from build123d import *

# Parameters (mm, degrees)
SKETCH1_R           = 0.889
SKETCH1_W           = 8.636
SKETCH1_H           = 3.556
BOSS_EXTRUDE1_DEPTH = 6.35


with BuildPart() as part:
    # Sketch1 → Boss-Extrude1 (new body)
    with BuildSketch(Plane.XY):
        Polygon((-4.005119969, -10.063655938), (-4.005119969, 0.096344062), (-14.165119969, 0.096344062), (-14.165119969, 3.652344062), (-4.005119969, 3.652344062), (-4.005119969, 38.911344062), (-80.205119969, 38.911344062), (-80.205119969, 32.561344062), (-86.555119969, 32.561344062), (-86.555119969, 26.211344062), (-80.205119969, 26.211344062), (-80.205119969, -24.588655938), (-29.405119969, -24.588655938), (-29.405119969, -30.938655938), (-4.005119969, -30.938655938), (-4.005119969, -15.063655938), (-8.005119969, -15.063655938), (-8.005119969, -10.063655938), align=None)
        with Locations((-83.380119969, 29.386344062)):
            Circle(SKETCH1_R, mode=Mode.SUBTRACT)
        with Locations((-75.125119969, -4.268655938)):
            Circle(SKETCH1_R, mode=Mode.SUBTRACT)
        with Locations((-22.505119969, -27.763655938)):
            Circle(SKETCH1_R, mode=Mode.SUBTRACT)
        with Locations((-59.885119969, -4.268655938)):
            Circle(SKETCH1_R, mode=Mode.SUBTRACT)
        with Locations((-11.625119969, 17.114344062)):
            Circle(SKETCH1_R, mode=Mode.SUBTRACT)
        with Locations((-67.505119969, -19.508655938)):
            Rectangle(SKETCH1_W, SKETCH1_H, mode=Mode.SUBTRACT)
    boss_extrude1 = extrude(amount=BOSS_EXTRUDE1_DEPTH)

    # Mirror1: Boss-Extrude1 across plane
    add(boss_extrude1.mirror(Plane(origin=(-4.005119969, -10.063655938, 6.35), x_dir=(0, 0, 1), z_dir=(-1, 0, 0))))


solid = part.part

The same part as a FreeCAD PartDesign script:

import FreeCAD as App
import Part
import Sketcher
Q = App.Units.Quantity

doc = App.newDocument("Part")
body = doc.addObject("PartDesign::Body", "Body")

# Sketch on XY plane
sketch1 = doc.addObject("Sketcher::SketchObject", "Sketch")
body.addObject(sketch1)
sketch1.AttachmentSupport = (doc.XY_Plane, [""])
sketch1.MapMode = "FlatFace"
sketch1.addGeometry([
    Part.LineSegment(App.Vector(-4, -10.1, 0), App.Vector(-4, 0.1, 0)),  # 0
    Part.LineSegment(App.Vector(-4, 0.1, 0), App.Vector(-14.2, 0.1, 0)),  # 1
    Part.LineSegment(App.Vector(-14.2, 0.1, 0), App.Vector(-14.2, 3.7, 0)),  # 2
    Part.LineSegment(App.Vector(-14.2, 3.7, 0), App.Vector(-4, 3.7, 0)),  # 3
    Part.LineSegment(App.Vector(-4, 3.7, 0), App.Vector(-4, 38.9, 0)),  # 4
    Part.LineSegment(App.Vector(-4, 38.9, 0), App.Vector(-80.2, 38.9, 0)),  # 5
    Part.LineSegment(App.Vector(-80.2, 38.9, 0), App.Vector(-80.2, 32.6, 0)),  # 6
    Part.LineSegment(App.Vector(-80.2, 32.6, 0), App.Vector(-86.6, 32.6, 0)),  # 7
    Part.LineSegment(App.Vector(-86.6, 32.6, 0), App.Vector(-86.6, 26.2, 0)),  # 8
    Part.LineSegment(App.Vector(-86.6, 26.2, 0), App.Vector(-80.2, 26.2, 0)),  # 9
    Part.LineSegment(App.Vector(-80.2, 26.2, 0), App.Vector(-80.2, -24.6, 0)),  # 10
    Part.LineSegment(App.Vector(-80.2, -24.6, 0), App.Vector(-29.4, -24.6, 0)),  # 11
    Part.LineSegment(App.Vector(-29.4, -24.6, 0), App.Vector(-29.4, -30.9, 0)),  # 12
    Part.LineSegment(App.Vector(-29.4, -30.9, 0), App.Vector(-4, -30.9, 0)),  # 13
    Part.LineSegment(App.Vector(-4, -30.9, 0), App.Vector(-4, -15.1, 0)),  # 14
    Part.LineSegment(App.Vector(-4, -15.1, 0), App.Vector(-8, -15.1, 0)),  # 15
    Part.LineSegment(App.Vector(-8, -15.1, 0), App.Vector(-8, -10.1, 0)),  # 16
    Part.LineSegment(App.Vector(-8, -10.1, 0), App.Vector(-4, -10.1, 0)),  # 17
    Part.LineSegment(App.Vector(-63.2, -21.3, 0), App.Vector(-71.8, -21.3, 0)),  # 18
    Part.LineSegment(App.Vector(-71.8, -21.3, 0), App.Vector(-71.8, -17.7, 0)),  # 19
    Part.LineSegment(App.Vector(-71.8, -17.7, 0), App.Vector(-63.2, -17.7, 0)),  # 20
    Part.LineSegment(App.Vector(-63.2, -17.7, 0), App.Vector(-63.2, -21.3, 0)),  # 21
    Part.Circle(App.Vector(-75.1, -4.3, 0), App.Vector(0, 0, 1), 0.9),  # 22
    Part.Circle(App.Vector(-59.9, -4.3, 0), App.Vector(0, 0, 1), 0.9),  # 23
    Part.Circle(App.Vector(-22.5, -27.8, 0), App.Vector(0, 0, 1), 0.9),  # 24
    Part.Circle(App.Vector(-83.4, 29.4, 0), App.Vector(0, 0, 1), 0.9),  # 25
    Part.Circle(App.Vector(-11.6, 17.1, 0), App.Vector(0, 0, 1), 0.9),  # 26
], False)
sketch1.addConstraint([
    Sketcher.Constraint("Coincident", 0, 2, 1, 1),
    Sketcher.Constraint("Coincident", 1, 2, 2, 1),
    Sketcher.Constraint("Coincident", 2, 2, 3, 1),
    Sketcher.Constraint("Coincident", 3, 2, 4, 1),
    Sketcher.Constraint("Coincident", 4, 2, 5, 1),
    Sketcher.Constraint("Coincident", 5, 2, 6, 1),
    Sketcher.Constraint("Coincident", 6, 2, 7, 1),
    Sketcher.Constraint("Coincident", 7, 2, 8, 1),
    Sketcher.Constraint("Coincident", 8, 2, 9, 1),
    Sketcher.Constraint("Coincident", 9, 2, 10, 1),
    Sketcher.Constraint("Coincident", 10, 2, 11, 1),
    Sketcher.Constraint("Coincident", 11, 2, 12, 1),
    Sketcher.Constraint("Coincident", 12, 2, 13, 1),
    Sketcher.Constraint("Coincident", 13, 2, 14, 1),
    Sketcher.Constraint("Coincident", 14, 2, 15, 1),
    Sketcher.Constraint("Coincident", 15, 2, 16, 1),
    Sketcher.Constraint("Coincident", 16, 2, 17, 1),
    Sketcher.Constraint("Coincident", 17, 2, 0, 1),
    Sketcher.Constraint("Coincident", 18, 2, 19, 1),
    Sketcher.Constraint("Coincident", 19, 2, 20, 1),
    Sketcher.Constraint("Coincident", 20, 2, 21, 1),
    Sketcher.Constraint("Coincident", 21, 2, 18, 1),
    Sketcher.Constraint("Vertical", 0),
    Sketcher.Constraint("Horizontal", 1),
    Sketcher.Constraint("Vertical", 2),
    Sketcher.Constraint("Horizontal", 3),
    Sketcher.Constraint("Vertical", 4),
    Sketcher.Constraint("Horizontal", 5),
    Sketcher.Constraint("Vertical", 6),
    Sketcher.Constraint("Horizontal", 7),
    Sketcher.Constraint("Vertical", 8),
    Sketcher.Constraint("Horizontal", 9),
    Sketcher.Constraint("Vertical", 10),
    Sketcher.Constraint("Horizontal", 11),
    Sketcher.Constraint("Vertical", 12),
    Sketcher.Constraint("Horizontal", 13),
    Sketcher.Constraint("Vertical", 14),
    Sketcher.Constraint("Horizontal", 15),
    Sketcher.Constraint("Vertical", 16),
    Sketcher.Constraint("Horizontal", 17),
    Sketcher.Constraint("Horizontal", 18),
    Sketcher.Constraint("Vertical", 19),
    Sketcher.Constraint("Horizontal", 20),
    Sketcher.Constraint("Vertical", 21),
    Sketcher.Constraint("Equal", 22, 23),
    Sketcher.Constraint("Equal", 23, 24),
    Sketcher.Constraint("Equal", 24, 25),
    Sketcher.Constraint("Equal", 25, 26),
    Sketcher.Constraint("Horizontal", 22, 3, 23, 3),
    Sketcher.Constraint("Vertical", 0, 2, 3, 2),
    Sketcher.Constraint("Vertical", 6, 2, 9, 2),
    Sketcher.Constraint("Vertical", 4, 2, 13, 2),
    Sketcher.Constraint("Equal", 3, 0),
    Sketcher.Constraint("Equal", 9, 6),
    Sketcher.Constraint("Equal", 6, 8),
    Sketcher.Constraint("Equal", 11, 10),
    Sketcher.Constraint("Equal", 8, 12),
    Sketcher.Constraint("Equal", 2, 19),
    Sketcher.Constraint("Diameter", 22, Q("0.07 in")),
    Sketcher.Constraint("DistanceX", 5, 2, 5, 1, Q("3 in")),
    Sketcher.Constraint("DistanceX", 11, 1, 11, 2, Q("2 in")),
    Sketcher.Constraint("DistanceX", 1, 2, 1, 1, Q("0.4 in")),
    Sketcher.Constraint("DistanceX", 7, 2, 7, 1, Q("0.25 in")),
    Sketcher.Constraint("DistanceX", 18, 2, 18, 1, Q("0.34 in")),
    Sketcher.Constraint("DistanceY", 2, 1, 2, 2, Q("0.14 in")),
    Sketcher.Constraint("DistanceX", 22, 3, 23, 3, Q("0.6 in")),
    Sketcher.Constraint("DistanceX", 23, 3, 26, 3, Q("1.9 in")),
    Sketcher.Constraint("DistanceX", 26, 3, 0, 2, Q("0.3 in")),
    Sketcher.Constraint("DistanceY", 22, 3, 5, 2, Q("1.7 in")),
    Sketcher.Constraint("DistanceY", 14, 1, 14, 2, Q("0.625 in")),
    Sketcher.Constraint("DistanceY", 24, 3, 25, 3, Q("2.25 in")),
    Sketcher.Constraint("DistanceY", 0, 2, 26, 3, Q("0.67 in")),
    Sketcher.Constraint("DistanceX", 10, 2, 18, 2, Q("0.33 in")),
    Sketcher.Constraint("DistanceY", 10, 2, 18, 2, Q("0.13 in")),
    Sketcher.Constraint("DistanceY", 24, 3, 23, 3, Q("0.925 in")),
    Sketcher.Constraint("DistanceX", 25, 3, 22, 3, Q("0.325 in")),
    Sketcher.Constraint("DistanceX", 15, 2, 15, 1, 4.0),
    Sketcher.Constraint("DistanceY", 4, 1, 4, 2, 35.259),
    Sketcher.Constraint("DistanceX", 23, 3, 24, 3, 37.38),
    Sketcher.Constraint("DistanceX", 22, 3, -1, 1, 75.12512),
    Sketcher.Constraint("DistanceY", 22, 3, -1, 1, 4.268656),
])
pad1 = doc.addObject("PartDesign::Pad", "Pad")
body.addObject(pad1)
pad1.Profile = sketch1
pad1.Length = Q("0.25 in")
doc.recompute()

datumplane = doc.addObject("PartDesign::Plane", "DatumPlane")
body.addObject(datumplane)
datumplane.AttachmentSupport = (doc.YZ_Plane, [""])
datumplane.MapMode = "FlatFace"
datumplane.AttachmentOffset = App.Placement(App.Vector(0, 0, -4.00512), App.Rotation())
mirrored = doc.addObject("PartDesign::Mirrored", "Mirrored")
body.addObject(mirrored)
mirrored.Originals = [pad1]
mirrored.MirrorPlane = (datumplane, [""])
body.Tip = mirrored

doc.recompute()
